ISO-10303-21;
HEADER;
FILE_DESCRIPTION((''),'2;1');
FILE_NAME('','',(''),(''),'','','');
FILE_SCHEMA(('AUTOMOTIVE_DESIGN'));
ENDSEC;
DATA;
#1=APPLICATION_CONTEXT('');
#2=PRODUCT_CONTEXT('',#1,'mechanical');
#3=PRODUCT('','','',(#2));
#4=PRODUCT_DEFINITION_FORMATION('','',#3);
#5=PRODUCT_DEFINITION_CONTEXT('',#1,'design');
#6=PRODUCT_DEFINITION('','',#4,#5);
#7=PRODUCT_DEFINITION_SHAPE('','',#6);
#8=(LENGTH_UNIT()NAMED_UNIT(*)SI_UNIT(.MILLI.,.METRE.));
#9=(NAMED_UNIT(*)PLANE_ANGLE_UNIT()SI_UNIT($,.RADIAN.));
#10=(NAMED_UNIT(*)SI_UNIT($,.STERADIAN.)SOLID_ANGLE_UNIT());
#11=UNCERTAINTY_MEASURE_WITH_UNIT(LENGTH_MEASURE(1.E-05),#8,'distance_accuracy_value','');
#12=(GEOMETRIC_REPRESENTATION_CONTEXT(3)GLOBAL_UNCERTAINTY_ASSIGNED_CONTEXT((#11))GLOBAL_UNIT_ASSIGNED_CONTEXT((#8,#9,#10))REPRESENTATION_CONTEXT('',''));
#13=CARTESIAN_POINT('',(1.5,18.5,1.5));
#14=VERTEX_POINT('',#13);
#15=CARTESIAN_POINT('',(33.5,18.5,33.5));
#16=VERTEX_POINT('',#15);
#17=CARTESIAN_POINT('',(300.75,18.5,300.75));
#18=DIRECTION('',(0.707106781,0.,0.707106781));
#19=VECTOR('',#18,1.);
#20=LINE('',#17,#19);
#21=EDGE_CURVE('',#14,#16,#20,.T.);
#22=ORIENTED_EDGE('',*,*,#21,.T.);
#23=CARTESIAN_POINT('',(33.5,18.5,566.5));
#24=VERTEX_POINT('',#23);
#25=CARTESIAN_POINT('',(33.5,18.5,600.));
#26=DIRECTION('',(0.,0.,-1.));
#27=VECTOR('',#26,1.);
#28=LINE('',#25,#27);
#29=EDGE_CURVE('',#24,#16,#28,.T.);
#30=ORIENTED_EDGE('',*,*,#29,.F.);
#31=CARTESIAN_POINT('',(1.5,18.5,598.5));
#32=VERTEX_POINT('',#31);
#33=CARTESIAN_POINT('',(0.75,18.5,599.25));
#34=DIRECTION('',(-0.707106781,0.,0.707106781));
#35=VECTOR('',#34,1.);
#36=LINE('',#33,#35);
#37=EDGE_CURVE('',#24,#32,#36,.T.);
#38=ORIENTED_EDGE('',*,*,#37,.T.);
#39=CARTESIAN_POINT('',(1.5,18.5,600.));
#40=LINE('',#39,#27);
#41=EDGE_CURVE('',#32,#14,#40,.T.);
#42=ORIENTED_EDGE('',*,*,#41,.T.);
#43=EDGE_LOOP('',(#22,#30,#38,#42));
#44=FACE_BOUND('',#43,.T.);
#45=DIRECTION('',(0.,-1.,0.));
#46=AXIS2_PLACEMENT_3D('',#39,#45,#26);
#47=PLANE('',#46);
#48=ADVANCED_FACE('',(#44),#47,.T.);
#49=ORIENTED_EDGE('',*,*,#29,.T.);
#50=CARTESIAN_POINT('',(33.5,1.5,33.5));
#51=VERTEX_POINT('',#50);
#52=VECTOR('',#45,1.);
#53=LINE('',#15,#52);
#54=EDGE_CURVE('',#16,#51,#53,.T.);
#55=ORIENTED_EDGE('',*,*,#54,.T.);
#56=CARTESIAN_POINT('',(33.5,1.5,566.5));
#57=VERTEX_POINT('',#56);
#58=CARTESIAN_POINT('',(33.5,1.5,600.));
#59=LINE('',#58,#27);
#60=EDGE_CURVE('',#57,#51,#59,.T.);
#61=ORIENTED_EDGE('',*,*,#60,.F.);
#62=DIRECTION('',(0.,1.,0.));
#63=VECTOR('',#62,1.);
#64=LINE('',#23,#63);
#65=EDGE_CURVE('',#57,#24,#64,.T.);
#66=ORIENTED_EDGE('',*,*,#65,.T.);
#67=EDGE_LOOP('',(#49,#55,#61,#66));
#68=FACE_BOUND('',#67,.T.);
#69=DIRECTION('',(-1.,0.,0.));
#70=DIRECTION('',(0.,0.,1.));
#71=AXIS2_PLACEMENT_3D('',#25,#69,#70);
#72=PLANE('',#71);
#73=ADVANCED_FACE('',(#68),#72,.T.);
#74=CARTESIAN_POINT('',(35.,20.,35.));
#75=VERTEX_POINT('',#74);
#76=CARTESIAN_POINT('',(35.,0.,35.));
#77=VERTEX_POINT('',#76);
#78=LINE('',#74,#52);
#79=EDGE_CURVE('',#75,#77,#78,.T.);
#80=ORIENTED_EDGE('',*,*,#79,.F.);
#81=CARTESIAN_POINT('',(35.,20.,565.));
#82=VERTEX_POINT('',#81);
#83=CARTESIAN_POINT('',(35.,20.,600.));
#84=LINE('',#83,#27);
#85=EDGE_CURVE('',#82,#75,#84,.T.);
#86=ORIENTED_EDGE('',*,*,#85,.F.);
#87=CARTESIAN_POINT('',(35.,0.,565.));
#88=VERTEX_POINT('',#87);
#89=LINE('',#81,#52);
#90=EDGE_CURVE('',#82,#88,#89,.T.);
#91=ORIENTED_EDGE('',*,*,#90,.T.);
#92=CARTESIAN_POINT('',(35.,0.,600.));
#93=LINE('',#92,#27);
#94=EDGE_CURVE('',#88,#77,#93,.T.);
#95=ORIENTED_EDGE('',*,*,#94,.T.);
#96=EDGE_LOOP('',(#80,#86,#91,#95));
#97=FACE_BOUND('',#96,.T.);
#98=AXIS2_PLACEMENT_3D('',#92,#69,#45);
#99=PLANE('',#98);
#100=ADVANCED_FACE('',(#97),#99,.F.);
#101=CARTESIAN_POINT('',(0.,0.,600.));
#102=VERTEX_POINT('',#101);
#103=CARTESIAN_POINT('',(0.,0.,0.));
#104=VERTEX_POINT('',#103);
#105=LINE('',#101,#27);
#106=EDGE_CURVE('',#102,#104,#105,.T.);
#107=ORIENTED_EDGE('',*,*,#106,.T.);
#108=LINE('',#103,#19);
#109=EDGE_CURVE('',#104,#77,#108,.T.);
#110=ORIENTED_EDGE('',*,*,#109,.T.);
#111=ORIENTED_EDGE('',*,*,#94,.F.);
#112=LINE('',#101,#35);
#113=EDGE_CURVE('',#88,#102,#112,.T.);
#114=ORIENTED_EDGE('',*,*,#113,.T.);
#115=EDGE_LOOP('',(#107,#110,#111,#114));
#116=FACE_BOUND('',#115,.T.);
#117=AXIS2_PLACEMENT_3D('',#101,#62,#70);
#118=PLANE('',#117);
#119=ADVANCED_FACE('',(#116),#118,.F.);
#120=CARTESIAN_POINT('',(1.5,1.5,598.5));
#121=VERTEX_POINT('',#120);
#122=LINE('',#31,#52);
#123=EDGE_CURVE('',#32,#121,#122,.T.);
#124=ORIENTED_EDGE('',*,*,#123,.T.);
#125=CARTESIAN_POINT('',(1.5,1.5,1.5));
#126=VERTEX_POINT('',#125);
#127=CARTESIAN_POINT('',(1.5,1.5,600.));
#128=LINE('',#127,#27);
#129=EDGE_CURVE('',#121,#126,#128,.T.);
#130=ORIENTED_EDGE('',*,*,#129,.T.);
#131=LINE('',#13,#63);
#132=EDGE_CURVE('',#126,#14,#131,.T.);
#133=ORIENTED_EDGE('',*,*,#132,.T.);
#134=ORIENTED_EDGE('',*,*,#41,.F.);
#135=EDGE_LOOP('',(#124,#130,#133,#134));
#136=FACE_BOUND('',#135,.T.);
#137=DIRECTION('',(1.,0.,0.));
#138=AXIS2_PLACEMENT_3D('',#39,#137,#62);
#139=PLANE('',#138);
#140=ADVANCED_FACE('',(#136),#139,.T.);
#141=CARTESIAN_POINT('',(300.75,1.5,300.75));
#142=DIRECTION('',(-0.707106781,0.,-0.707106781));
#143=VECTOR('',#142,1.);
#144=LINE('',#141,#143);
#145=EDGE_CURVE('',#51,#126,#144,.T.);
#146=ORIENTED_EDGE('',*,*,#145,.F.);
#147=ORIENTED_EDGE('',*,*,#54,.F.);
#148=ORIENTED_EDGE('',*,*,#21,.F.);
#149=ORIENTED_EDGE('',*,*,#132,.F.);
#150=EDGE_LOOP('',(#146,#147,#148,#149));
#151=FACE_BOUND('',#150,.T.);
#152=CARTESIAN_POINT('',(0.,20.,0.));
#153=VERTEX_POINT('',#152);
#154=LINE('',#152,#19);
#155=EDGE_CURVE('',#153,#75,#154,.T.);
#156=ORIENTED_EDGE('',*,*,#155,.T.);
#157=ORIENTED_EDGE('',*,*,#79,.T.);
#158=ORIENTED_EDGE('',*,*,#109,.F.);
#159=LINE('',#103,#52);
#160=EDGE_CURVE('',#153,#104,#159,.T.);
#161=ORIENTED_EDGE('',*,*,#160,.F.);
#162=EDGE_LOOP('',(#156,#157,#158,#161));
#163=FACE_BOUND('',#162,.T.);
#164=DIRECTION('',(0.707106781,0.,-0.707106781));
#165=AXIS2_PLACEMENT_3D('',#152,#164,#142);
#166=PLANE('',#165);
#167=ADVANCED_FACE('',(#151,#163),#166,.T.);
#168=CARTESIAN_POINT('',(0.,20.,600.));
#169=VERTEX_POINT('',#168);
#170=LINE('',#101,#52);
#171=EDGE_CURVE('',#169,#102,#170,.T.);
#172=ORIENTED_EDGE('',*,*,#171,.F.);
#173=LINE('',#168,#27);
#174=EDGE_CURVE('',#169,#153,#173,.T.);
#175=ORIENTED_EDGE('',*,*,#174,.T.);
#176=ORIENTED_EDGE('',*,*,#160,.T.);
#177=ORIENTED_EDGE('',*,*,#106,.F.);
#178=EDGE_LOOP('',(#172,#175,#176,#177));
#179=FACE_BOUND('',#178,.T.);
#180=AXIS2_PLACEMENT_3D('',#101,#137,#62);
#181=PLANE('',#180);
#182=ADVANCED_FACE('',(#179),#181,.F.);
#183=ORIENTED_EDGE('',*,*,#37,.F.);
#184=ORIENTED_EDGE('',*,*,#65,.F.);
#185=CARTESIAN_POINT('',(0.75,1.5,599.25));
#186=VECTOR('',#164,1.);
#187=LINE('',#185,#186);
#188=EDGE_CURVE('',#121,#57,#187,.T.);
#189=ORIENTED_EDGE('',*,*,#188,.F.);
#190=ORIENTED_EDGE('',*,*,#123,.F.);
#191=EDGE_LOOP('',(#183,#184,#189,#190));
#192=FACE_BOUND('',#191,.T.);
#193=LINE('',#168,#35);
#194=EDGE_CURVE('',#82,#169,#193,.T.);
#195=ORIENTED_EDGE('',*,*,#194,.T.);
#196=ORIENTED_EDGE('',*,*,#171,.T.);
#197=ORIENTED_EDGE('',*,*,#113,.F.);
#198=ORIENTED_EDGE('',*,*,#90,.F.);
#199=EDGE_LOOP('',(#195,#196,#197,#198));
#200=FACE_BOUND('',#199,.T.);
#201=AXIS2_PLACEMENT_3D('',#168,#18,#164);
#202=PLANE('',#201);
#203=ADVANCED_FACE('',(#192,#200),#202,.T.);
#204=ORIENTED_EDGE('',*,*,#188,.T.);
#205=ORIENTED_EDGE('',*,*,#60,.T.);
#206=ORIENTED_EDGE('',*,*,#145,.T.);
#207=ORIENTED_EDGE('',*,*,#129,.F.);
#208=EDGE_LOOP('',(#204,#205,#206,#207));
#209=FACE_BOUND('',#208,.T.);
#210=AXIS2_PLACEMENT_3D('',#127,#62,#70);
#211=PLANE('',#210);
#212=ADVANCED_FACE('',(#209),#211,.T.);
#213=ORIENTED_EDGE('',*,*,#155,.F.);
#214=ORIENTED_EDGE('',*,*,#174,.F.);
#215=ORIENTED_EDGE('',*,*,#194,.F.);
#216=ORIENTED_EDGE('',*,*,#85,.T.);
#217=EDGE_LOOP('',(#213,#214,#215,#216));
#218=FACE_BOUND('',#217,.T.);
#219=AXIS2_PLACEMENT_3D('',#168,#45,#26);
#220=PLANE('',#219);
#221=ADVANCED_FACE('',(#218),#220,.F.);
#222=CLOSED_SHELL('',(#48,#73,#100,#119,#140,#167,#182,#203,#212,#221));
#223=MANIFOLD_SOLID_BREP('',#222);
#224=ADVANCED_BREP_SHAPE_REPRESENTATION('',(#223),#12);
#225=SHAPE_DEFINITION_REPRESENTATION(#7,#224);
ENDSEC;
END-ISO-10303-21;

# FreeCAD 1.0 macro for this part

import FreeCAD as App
import Part
import Sketcher

V = App.Vector

doc = App.newDocument("Part")
body = doc.addObject("PartDesign::Body", "Body")

sketch1 = doc.addObject("Sketcher::SketchObject", "Sketch")
body.addObject(sketch1)
sketch1.AttachmentSupport = (doc.XY_Plane, [""])
sketch1.MapMode = "FlatFace"
sketch1.addGeometry(Part.LineSegment(V(0, 20, 0), V(0, 0, 0)), False)
sketch1.addGeometry(Part.LineSegment(V(0, 0, 0), V(35, 0, 0)), False)
sketch1.addGeometry(Part.LineSegment(V(35, 0, 0), V(35, 20, 0)), False)
sketch1.addGeometry(Part.LineSegment(V(35, 20, 0), V(0, 20, 0)), False)
sketch1.addGeometry(Part.LineSegment(V(34, 2, 0), V(2, 2, 0)), False)
sketch1.addGeometry(Part.LineSegment(V(2, 2, 0), V(2, 18, 0)), False)
sketch1.addGeometry(Part.LineSegment(V(2, 18, 0), V(34, 18, 0)), False)
sketch1.addGeometry(Part.LineSegment(V(34, 18, 0), V(34, 2, 0)), False)
sketch1.addConstraint(Sketcher.Constraint("Coincident", 0, 2, 1, 1))
sketch1.addConstraint(Sketcher.Constraint("Coincident", 1, 2, 2, 1))
sketch1.addConstraint(Sketcher.Constraint("Coincident", 2, 2, 3, 1))
sketch1.addConstraint(Sketcher.Constraint("Coincident", 3, 2, 0, 1))
sketch1.addConstraint(Sketcher.Constraint("Coincident", 4, 2, 5, 1))
sketch1.addConstraint(Sketcher.Constraint("Coincident", 5, 2, 6, 1))
sketch1.addConstraint(Sketcher.Constraint("Coincident", 6, 2, 7, 1))
sketch1.addConstraint(Sketcher.Constraint("Coincident", 7, 2, 4, 1))
sketch1.addConstraint(Sketcher.Constraint("Vertical", 0))
sketch1.addConstraint(Sketcher.Constraint("Horizontal", 1))
sketch1.addConstraint(Sketcher.Constraint("Vertical", 2))
sketch1.addConstraint(Sketcher.Constraint("Horizontal", 3))
sketch1.addConstraint(Sketcher.Constraint("Horizontal", 4))
sketch1.addConstraint(Sketcher.Constraint("Vertical", 5))
sketch1.addConstraint(Sketcher.Constraint("Horizontal", 6))
sketch1.addConstraint(Sketcher.Constraint("Vertical", 7))
sketch1.addConstraint(Sketcher.Constraint("Coincident", 0, 2, -1, 1))
sketch1.addConstraint(Sketcher.Constraint("DistanceX", 1, 1, 1, 2, 35.0))
sketch1.addConstraint(Sketcher.Constraint("DistanceX", 4, 2, 4, 1, 32.0))
sketch1.addConstraint(Sketcher.Constraint("DistanceY", 0, 2, 0, 1, 20.0))
sketch1.addConstraint(Sketcher.Constraint("DistanceY", 5, 1, 5, 2, 17.0))
sketch1.addConstraint(Sketcher.Constraint("DistanceX", -1, 1, 4, 2, 1.5))
sketch1.addConstraint(Sketcher.Constraint("DistanceY", -1, 1, 4, 2, 1.5))
pad1 = doc.addObject("PartDesign::Pad", "Pad")
body.addObject(pad1)
pad1.Profile = sketch1
pad1.Length = 600

sketch2 = doc.addObject("Sketcher::SketchObject", "Sketch001")
body.addObject(sketch2)
sketch2.AttachmentSupport = (doc.XZ_Plane, [""])
sketch2.MapMode = "FlatFace"
sketch2.addGeometry(Part.LineSegment(V(35, 565, 0), V(0, 600, 0)), False)
sketch2.addGeometry(Part.LineSegment(V(0, 600, 0), V(35, 600, 0)), False)
sketch2.addGeometry(Part.LineSegment(V(35, 600, 0), V(35, 565, 0)), False)
sketch2.addConstraint(Sketcher.Constraint("Coincident", 0, 2, 1, 1))
sketch2.addConstraint(Sketcher.Constraint("Coincident", 1, 2, 2, 1))
sketch2.addConstraint(Sketcher.Constraint("Coincident", 2, 2, 0, 1))
sketch2.addConstraint(Sketcher.Constraint("Horizontal", 1))
sketch2.addConstraint(Sketcher.Constraint("Vertical", 2))
sketch2.addConstraint(Sketcher.Constraint("PointOnObject", 0, 2, -2))
sketch2.addConstraint(Sketcher.Constraint("Equal", 1, 2))
sketch2.addConstraint(Sketcher.Constraint("DistanceX", 1, 1, 1, 2, 35.0))
sketch2.addConstraint(Sketcher.Constraint("DistanceY", -1, 1, 0, 2, 600.0))
pocket1 = doc.addObject("PartDesign::Pocket", "Pocket")
body.addObject(pocket1)
pocket1.Profile = sketch2
pocket1.Type = "ThroughAll"

sketch3 = doc.addObject("Sketcher::SketchObject", "Sketch002")
body.addObject(sketch3)
sketch3.AttachmentSupport = (doc.XZ_Plane, [""])
sketch3.MapMode = "FlatFace"
sketch3.addGeometry(Part.LineSegment(V(0, 0, 0), V(35, 35, 0)), False)
sketch3.addGeometry(Part.LineSegment(V(35, 35, 0), V(35, 0, 0)), False)
sketch3.addGeometry(Part.LineSegment(V(35, 0, 0), V(0, 0, 0)), False)
sketch3.addConstraint(Sketcher.Constraint("Coincident", 0, 2, 1, 1))
sketch3.addConstraint(Sketcher.Constraint("Coincident", 1, 2, 2, 1))
sketch3.addConstraint(Sketcher.Constraint("Coincident", 2, 2, 0, 1))
sketch3.addConstraint(Sketcher.Constraint("Vertical", 1))
sketch3.addConstraint(Sketcher.Constraint("Horizontal", 2))
sketch3.addConstraint(Sketcher.Constraint("Coincident", 2, 2, -1, 1))
sketch3.addConstraint(Sketcher.Constraint("Equal", 2, 1))
sketch3.addConstraint(Sketcher.Constraint("DistanceX", 2, 2, 2, 1, 35.0))
pocket2 = doc.addObject("PartDesign::Pocket", "Pocket001")
body.addObject(pocket2)
pocket2.Profile = sketch3
pocket2.Type = "ThroughAll"

doc.recompute()
